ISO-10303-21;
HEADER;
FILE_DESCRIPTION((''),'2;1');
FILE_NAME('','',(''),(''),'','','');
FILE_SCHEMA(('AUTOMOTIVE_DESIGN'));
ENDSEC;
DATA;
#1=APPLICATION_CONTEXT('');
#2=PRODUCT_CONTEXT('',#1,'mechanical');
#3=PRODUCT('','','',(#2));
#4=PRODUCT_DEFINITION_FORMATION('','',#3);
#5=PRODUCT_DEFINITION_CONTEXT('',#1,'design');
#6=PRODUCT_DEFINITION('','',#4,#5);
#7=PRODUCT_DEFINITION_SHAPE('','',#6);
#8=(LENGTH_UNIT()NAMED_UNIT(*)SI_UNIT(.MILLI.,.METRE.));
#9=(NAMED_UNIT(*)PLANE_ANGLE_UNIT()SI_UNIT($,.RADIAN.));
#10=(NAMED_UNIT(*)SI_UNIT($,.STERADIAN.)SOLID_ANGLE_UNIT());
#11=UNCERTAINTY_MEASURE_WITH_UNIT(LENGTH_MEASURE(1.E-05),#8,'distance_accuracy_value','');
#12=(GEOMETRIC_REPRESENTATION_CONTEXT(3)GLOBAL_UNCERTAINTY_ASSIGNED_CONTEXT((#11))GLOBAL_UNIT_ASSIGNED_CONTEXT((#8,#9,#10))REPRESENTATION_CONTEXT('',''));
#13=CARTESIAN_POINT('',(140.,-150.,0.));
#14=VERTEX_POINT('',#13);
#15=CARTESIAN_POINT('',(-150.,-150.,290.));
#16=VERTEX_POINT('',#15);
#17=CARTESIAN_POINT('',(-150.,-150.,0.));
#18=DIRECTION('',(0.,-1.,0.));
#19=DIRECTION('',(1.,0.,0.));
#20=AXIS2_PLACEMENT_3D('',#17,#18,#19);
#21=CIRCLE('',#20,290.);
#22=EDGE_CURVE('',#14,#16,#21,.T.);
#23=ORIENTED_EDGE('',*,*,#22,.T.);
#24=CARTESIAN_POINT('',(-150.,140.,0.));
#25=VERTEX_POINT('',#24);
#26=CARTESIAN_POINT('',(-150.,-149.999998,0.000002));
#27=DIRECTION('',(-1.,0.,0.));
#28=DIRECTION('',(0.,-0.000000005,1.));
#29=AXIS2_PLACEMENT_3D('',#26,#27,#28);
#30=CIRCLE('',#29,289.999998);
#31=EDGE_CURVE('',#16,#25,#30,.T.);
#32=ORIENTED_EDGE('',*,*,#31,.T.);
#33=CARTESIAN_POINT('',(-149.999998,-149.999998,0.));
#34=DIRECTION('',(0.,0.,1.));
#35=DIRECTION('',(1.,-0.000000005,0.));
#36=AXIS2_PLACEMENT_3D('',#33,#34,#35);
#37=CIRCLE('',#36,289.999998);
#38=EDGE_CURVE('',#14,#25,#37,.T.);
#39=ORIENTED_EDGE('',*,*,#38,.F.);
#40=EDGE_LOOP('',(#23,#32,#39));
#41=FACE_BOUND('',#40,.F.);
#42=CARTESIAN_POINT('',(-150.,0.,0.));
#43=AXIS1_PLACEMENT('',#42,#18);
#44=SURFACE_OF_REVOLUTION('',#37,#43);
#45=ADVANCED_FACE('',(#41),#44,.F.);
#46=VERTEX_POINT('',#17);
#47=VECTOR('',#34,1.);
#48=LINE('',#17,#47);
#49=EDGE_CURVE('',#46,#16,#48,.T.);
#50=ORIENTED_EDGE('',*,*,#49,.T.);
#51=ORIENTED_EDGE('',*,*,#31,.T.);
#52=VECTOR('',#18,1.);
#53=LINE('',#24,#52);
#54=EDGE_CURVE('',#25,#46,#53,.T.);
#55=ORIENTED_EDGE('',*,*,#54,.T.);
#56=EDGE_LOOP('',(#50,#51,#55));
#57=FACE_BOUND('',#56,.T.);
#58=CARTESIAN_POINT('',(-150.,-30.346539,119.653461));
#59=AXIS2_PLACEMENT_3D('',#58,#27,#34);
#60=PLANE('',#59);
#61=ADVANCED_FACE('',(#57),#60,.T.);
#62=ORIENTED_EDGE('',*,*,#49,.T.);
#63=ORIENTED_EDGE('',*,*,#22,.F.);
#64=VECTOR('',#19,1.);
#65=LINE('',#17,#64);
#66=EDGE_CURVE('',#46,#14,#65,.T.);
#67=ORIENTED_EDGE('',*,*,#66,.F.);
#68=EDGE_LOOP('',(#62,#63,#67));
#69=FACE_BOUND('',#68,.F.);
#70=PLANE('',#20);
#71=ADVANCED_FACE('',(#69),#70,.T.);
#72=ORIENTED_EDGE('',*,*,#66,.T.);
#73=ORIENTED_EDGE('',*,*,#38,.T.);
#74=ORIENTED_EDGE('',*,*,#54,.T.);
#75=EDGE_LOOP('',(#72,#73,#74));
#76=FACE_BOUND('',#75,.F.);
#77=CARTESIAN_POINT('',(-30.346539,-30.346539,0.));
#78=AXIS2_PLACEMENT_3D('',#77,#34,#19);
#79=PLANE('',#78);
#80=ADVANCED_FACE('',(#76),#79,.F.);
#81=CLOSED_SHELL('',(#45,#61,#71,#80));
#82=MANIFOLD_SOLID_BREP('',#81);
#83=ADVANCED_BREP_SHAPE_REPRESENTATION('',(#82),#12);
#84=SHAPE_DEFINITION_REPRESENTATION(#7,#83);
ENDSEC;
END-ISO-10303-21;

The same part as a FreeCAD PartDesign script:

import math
import FreeCAD as App
import Part
import Sketcher
from FreeCAD import Vector
Q = App.Units.Quantity

doc = App.newDocument("Part")
params = doc.addObject("Spreadsheet::Sheet", "Params")
for row, (alias, value) in enumerate([
    ("sketch1_radius", "289.999998 mm"),
    ("revolution_angle", "90 deg"),
], start=1):
    params.set(f"A{row}", alias)
    params.set(f"B{row}", "=" + value)
    params.setAlias(f"B{row}", alias)

body = doc.addObject("PartDesign::Body", "Body")

# Sketch on XY plane
sketch1 = body.newObject("Sketcher::SketchObject", "Sketch")
sketch1.AttachmentSupport = (doc.getObject("XY_Plane"), [""])
sketch1.MapMode = "FlatFace"
sketch1.addGeometry(Part.LineSegment(Vector(-150, -150, 0), Vector(140, -150, 0)), False)
sketch1.addGeometry(Part.ArcOfCircle(Part.Circle(Vector(-150, -150, 0), Vector(0, 0, 1), 290), math.radians(0), math.radians(90)), False)
sketch1.addGeometry(Part.LineSegment(Vector(-150, 140, 0), Vector(-150, -150, 0)), False)
sketch1.addGeometry(Part.LineSegment(Vector(-150, -150, 0), Vector(-150, 140, 0)), True)  # axis
sketch1.addConstraint(Sketcher.Constraint("Coincident", 0, 2, 1, 1))
sketch1.addConstraint(Sketcher.Constraint("Coincident", 1, 2, 2, 1))
sketch1.addConstraint(Sketcher.Constraint("Coincident", 2, 2, 0, 1))
sketch1.addConstraint(Sketcher.Constraint("Horizontal", 0))
sketch1.addConstraint(Sketcher.Constraint("Vertical", 2))
sketch1.addConstraint(Sketcher.Constraint("Vertical", 3))
sketch1.addConstraint(Sketcher.Constraint("Coincident", 2, 2, 1, 3))
sketch1.addConstraint(Sketcher.Constraint("Coincident", 3, 1, 1, 3))
sketch1.addConstraint(Sketcher.Constraint("Equal", 2, 3))
sketch1.addConstraint(Sketcher.Constraint("Radius", 1, Q("289.999998 mm")))
sketch1.addConstraint(Sketcher.Constraint("DistanceX", 1, 3, -1, 1, Q("149.999998 mm")))
sketch1.addConstraint(Sketcher.Constraint("DistanceY", 1, 3, -1, 1, Q("149.999998 mm")))
sketch1.setExpression("Constraints[9]", "Params.sketch1_radius")
revolution = body.newObject("PartDesign::Revolution", "Revolution")
revolution.Profile = sketch1
revolution.ReferenceAxis = (sketch1, ["Axis0"])
revolution.setExpression("Angle", "Params.revolution_angle")
revolution.Reversed = True

doc.recompute()
